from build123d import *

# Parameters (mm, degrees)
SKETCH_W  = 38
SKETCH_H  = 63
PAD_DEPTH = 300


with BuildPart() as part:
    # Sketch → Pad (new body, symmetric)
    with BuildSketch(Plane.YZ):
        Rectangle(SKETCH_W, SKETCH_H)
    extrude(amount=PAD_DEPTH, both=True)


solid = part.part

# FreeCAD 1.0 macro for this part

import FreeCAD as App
import Part
import Sketcher
from FreeCAD import Vector


def add_polygon(sketch, points):
    """Adds a closed chain of lines whose ends are joined by coincident constraints."""
    first, n = sketch.GeometryCount, len(points)
    for a, b in zip(points, points[1:] + points[:1]):
        sketch.addGeometry(Part.LineSegment(App.Vector(*a, 0), App.Vector(*b, 0)), False)
    for i in range(n):
        sketch.addConstraint(Sketcher.Constraint("Coincident", first + i, 2, first + (i + 1) % n, 1))

doc = App.newDocument("Part")
body = doc.addObject("PartDesign::Body", "Body")

# Sketch on YZ plane
sketch1 = body.newObject("Sketcher::SketchObject", "Sketch")
sketch1.AttachmentSupport = (doc.getObject("YZ_Plane"), [""])
sketch1.MapMode = "FlatFace"
add_polygon(sketch1, [(-19, 31.5), (-19, -31.5), (19, -31.5), (19, 31.5)])  # lines 0-3
sketch1.addConstraint(Sketcher.Constraint("Vertical", 0))
sketch1.addConstraint(Sketcher.Constraint("Horizontal", 1))
sketch1.addConstraint(Sketcher.Constraint("Vertical", 2))
sketch1.addConstraint(Sketcher.Constraint("Horizontal", 3))
sketch1.addConstraint(Sketcher.Constraint("Symmetric", 0, 2, 2, 2, -1, 1))
sketch1.addConstraint(Sketcher.Constraint("DistanceX", 1, 1, 1, 2, 38.0))
sketch1.addConstraint(Sketcher.Constraint("DistanceY", 0, 2, 0, 1, 63.0))
pad1 = body.newObject("PartDesign::Pad", "Pad")
pad1.Profile = sketch1
pad1.Length = 600
pad1.Midplane = True

doc.recompute()
